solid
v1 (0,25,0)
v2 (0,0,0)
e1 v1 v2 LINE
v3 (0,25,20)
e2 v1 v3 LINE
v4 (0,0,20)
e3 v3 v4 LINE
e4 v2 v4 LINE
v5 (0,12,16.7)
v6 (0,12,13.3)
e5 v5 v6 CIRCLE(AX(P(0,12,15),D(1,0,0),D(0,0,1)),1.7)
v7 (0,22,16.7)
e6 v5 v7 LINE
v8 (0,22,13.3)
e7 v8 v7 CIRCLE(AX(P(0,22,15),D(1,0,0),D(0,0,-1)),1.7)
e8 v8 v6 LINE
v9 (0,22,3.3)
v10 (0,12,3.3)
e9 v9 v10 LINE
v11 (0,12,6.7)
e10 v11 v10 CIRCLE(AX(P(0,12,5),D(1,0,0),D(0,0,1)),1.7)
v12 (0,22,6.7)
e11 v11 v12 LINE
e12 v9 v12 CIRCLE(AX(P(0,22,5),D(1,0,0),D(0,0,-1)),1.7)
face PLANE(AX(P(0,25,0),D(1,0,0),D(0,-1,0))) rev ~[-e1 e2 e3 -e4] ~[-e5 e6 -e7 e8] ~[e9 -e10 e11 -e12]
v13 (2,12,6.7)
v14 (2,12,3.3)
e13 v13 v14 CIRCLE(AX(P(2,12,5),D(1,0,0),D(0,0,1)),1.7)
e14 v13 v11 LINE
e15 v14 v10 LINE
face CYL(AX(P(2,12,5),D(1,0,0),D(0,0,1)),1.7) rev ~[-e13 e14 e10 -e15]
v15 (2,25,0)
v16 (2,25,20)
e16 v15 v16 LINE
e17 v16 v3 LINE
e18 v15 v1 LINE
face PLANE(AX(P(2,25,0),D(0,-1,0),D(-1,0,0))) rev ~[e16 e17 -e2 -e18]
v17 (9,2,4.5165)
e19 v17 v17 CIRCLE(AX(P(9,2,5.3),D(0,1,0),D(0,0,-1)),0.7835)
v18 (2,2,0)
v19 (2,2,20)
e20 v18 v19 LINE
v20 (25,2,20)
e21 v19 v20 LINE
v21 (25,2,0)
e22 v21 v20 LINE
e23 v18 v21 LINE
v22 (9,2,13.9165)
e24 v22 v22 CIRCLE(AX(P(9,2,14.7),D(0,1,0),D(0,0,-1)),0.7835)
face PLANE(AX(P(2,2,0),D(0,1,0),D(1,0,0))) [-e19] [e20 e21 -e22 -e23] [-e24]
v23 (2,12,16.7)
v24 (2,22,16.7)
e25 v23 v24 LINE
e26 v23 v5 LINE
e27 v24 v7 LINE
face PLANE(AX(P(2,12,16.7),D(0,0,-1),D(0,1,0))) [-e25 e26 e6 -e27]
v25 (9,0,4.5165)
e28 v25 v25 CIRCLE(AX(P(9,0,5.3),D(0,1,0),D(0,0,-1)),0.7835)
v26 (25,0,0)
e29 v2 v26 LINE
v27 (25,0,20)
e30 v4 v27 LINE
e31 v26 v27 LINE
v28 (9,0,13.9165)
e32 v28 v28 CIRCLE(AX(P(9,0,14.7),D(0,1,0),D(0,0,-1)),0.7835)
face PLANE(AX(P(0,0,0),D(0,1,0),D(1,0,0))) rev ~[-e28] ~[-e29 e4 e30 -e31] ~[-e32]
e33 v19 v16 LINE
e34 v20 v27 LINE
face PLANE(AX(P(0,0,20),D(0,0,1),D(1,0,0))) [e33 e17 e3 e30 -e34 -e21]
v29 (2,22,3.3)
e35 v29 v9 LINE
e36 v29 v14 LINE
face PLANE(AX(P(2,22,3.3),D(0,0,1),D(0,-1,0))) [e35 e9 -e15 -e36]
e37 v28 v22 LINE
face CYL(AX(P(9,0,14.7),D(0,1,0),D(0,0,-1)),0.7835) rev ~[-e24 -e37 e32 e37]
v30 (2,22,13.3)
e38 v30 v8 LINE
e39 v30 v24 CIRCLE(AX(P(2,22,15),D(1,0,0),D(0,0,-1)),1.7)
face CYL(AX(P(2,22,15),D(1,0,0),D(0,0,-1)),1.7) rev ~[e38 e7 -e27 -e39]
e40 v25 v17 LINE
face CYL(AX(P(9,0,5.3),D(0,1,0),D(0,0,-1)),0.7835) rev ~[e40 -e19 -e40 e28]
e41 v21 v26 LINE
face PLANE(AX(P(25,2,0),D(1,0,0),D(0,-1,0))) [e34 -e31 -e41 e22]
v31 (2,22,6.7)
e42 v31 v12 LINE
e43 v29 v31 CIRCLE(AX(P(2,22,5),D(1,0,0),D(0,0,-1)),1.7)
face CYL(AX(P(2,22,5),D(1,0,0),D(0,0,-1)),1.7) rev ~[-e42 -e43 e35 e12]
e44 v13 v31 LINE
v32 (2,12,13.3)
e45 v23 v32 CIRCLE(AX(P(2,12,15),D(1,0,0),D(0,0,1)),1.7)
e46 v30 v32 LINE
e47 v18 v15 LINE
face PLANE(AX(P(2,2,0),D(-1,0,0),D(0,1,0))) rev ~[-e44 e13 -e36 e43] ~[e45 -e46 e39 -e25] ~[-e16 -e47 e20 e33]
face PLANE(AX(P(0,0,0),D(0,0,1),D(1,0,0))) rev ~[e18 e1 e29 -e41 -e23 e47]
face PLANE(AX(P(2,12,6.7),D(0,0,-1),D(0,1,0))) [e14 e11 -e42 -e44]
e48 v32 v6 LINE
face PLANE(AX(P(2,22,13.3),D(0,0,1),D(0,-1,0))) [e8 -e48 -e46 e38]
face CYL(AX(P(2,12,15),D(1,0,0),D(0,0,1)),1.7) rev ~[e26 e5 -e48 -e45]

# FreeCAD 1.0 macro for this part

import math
import FreeCAD as App
import Part
import Sketcher
Q = App.Units.Quantity


def add_polygon(sketch, points):
    """Adds a closed chain of lines whose ends are joined by coincident constraints."""
    first, n = sketch.GeometryCount, len(points)
    for a, b in zip(points, points[1:] + points[:1]):
        sketch.addGeometry(Part.LineSegment(App.Vector(*a, 0), App.Vector(*b, 0)), False)
    for i in range(n):
        sketch.addConstraint(Sketcher.Constraint("Coincident", first + i, 2, first + (i + 1) % n, 1))

doc = App.newDocument("Part")
params = doc.addObject("Spreadsheet::Sheet", "Params")
for row, (alias, value) in enumerate([
    ("sketch1_width", "25 mm"),
    ("sketch1_width2", "2 mm"),
    ("pad1_length", "20 mm"),
    ("hole_diameter", "1.567 mm"),
    ("sketch3_radius", "1.7 mm"),
    ("sketch3_width", "10 mm"),
], start=1):
    params.set(f"A{row}", alias)
    params.set(f"B{row}", "=" + value)
    params.setAlias(f"B{row}", alias)

body = doc.addObject("PartDesign::Body", "Body")

sketch1 = body.newObject("Sketcher::SketchObject", "Sketch")
sketch1.AttachmentSupport = (doc.getObject("XY_Plane"), [""])
sketch1.MapMode = "FlatFace"
add_polygon(sketch1, [(0, 25), (0, 0), (25, 0), (25, 2), (2, 2), (2, 25)])
sketch1.addConstraint([
    Sketcher.Constraint("Vertical", 0),
    Sketcher.Constraint("Horizontal", 1),
    Sketcher.Constraint("Vertical", 2),
    Sketcher.Constraint("Horizontal", 3),
    Sketcher.Constraint("Vertical", 4),
    Sketcher.Constraint("Horizontal", 5),
    Sketcher.Constraint("Coincident", 0, 2, -1, 1),
    Sketcher.Constraint("Equal", 1, 0),
    Sketcher.Constraint("Equal", 5, 2),
    Sketcher.Constraint("DistanceX", 1, 1, 1, 2, Q("25 mm")),
    Sketcher.Constraint("DistanceX", 5, 2, 5, 1, Q("2 mm")),
])
sketch1.setExpression("Constraints[15]", "Params.sketch1_width")
sketch1.setExpression("Constraints[16]", "Params.sketch1_width2")
pad1 = body.newObject("PartDesign::Pad", "Pad")
pad1.Profile = sketch1
pad1.setExpression("Length", "Params.pad1_length")

sketch2 = body.newObject("Sketcher::SketchObject", "Sketch001")
sketch2.AttachmentSupport = (doc.getObject("XZ_Plane"), [""])
sketch2.MapMode = "FlatFace"
sketch2.addGeometry([
    Part.Circle(App.Vector(9, 14.7, 0), App.Vector(0, 0, 1), 0.7835),
    Part.Circle(App.Vector(9, 5.3, 0), App.Vector(0, 0, 1), 0.7835),
], False)
sketch2.addConstraint([
    Sketcher.Constraint("Equal", 0, 1),
    Sketcher.Constraint("Vertical", 0, 3, 1, 3),
    Sketcher.Constraint("Diameter", 0, Q("1.567 mm")),
    Sketcher.Constraint("DistanceX", -1, 1, 0, 3, Q("9 mm")),
    Sketcher.Constraint("DistanceY", -1, 1, 0, 3, Q("14.7 mm")),
    Sketcher.Constraint("DistanceY", -1, 1, 1, 3, Q("5.3 mm")),
])
doc.recompute()
hole = body.newObject("PartDesign::Hole", "Hole")
hole.Profile = sketch2
hole.ThreadType = "None"
hole.setExpression("Diameter", "Params.hole_diameter")
hole.DepthType = "ThroughAll"

sketch3 = body.newObject("Sketcher::SketchObject", "Sketch002")
sketch3.AttachmentSupport = (doc.getObject("YZ_Plane"), [""])
sketch3.MapMode = "FlatFace"
sketch3.AttachmentOffset = App.Placement(App.Vector(0, 0, 2), App.Rotation())
sketch3.addGeometry([
    Part.LineSegment(App.Vector(12, 13.3, 0), App.Vector(22, 13.3, 0)),
    Part.ArcOfCircle(Part.Circle(App.Vector(22, 15, 0), App.Vector(0, 0, 1), 1.7), math.radians(-90), math.radians(90)),
    Part.LineSegment(App.Vector(22, 16.7, 0), App.Vector(12, 16.7, 0)),
    Part.ArcOfCircle(Part.Circle(App.Vector(12, 15, 0), App.Vector(0, 0, 1), 1.7), math.radians(90), math.radians(270)),
    Part.LineSegment(App.Vector(12, 3.3, 0), App.Vector(22, 3.3, 0)),
    Part.ArcOfCircle(Part.Circle(App.Vector(22, 5, 0), App.Vector(0, 0, 1), 1.7), math.radians(-90), math.radians(90)),
    Part.LineSegment(App.Vector(22, 6.7, 0), App.Vector(12, 6.7, 0)),
    Part.ArcOfCircle(Part.Circle(App.Vector(12, 5, 0), App.Vector(0, 0, 1), 1.7), math.radians(90), math.radians(270)),
], False)
sketch3.addConstraint([
    Sketcher.Constraint("Tangent", 0, 2, 1, 1),
    Sketcher.Constraint("Tangent", 1, 2, 2, 1),
    Sketcher.Constraint("Tangent", 2, 2, 3, 1),
    Sketcher.Constraint("Tangent", 3, 2, 0, 1),
    Sketcher.Constraint("Tangent", 4, 2, 5, 1),
    Sketcher.Constraint("Tangent", 5, 2, 6, 1),
    Sketcher.Constraint("Tangent", 6, 2, 7, 1),
    Sketcher.Constraint("Tangent", 7, 2, 4, 1),
    Sketcher.Constraint("Horizontal", 0),
    Sketcher.Constraint("Horizontal", 2),
    Sketcher.Constraint("Horizontal", 4),
    Sketcher.Constraint("Horizontal", 6),
    Sketcher.Constraint("Equal", 3, 5),
    Sketcher.Constraint("Vertical", 1, 3, 5, 3),
    Sketcher.Constraint("Vertical", 3, 3, 7, 3),
    Sketcher.Constraint("Radius", 1, Q("1.7 mm")),
    Sketcher.Constraint("DistanceX", 0, 1, 0, 2, Q("10 mm")),
    Sketcher.Constraint("DistanceY", 5, 3, 1, 3, Q("10 mm")),
    Sketcher.Constraint("DistanceX", -1, 1, 1, 3, Q("22 mm")),
    Sketcher.Constraint("DistanceY", -1, 1, 1, 3, Q("15 mm")),
])
sketch3.setExpression("Constraints[15]", "Params.sketch3_radius")
sketch3.setExpression("Constraints[16]", "Params.sketch3_width")
pocket1 = body.newObject("PartDesign::Pocket", "Pocket")
pocket1.Profile = sketch3
pocket1.Type = "ThroughAll"

doc.recompute()
